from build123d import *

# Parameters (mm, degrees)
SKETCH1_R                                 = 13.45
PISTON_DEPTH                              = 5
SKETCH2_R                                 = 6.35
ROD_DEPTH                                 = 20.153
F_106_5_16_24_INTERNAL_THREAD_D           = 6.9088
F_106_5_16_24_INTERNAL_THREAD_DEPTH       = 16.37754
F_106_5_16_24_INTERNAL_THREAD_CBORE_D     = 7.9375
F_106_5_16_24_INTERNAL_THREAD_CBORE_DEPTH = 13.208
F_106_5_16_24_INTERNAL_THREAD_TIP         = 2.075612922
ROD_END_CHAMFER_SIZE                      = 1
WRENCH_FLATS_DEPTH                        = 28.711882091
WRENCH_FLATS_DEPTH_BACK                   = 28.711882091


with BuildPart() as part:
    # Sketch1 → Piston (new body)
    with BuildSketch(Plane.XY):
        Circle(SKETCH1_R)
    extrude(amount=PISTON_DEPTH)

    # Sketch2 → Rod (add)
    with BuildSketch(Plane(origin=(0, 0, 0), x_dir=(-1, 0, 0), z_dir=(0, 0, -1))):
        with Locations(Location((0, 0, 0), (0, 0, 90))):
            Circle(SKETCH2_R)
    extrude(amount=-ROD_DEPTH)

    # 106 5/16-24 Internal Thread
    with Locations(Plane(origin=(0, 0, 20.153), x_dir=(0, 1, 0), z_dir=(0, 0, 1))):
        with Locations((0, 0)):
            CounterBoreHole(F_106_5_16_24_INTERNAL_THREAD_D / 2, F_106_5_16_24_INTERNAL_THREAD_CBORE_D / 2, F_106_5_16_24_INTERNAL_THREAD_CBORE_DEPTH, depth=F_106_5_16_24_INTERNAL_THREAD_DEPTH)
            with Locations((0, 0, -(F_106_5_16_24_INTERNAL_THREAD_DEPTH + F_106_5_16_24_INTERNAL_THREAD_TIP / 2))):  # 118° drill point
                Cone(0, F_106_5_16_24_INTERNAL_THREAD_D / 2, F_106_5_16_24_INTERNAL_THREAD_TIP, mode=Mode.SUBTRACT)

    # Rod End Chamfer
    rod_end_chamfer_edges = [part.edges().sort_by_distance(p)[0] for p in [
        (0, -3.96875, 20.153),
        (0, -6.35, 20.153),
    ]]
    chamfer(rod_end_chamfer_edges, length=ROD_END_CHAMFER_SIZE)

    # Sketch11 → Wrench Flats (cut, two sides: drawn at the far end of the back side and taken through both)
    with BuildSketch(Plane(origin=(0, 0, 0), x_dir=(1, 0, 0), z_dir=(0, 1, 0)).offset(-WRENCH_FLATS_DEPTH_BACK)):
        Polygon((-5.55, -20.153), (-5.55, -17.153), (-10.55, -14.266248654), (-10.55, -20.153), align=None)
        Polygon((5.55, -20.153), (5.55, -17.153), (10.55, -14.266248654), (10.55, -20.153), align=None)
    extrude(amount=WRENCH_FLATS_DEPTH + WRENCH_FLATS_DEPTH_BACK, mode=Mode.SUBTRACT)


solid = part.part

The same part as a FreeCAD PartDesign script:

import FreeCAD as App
import Part
import Sketcher
from FreeCAD import Vector
Q = App.Units.Quantity


def edges_at(feature, points):
    """Names of the edges that pass closest to the given points."""
    edges = feature.Shape.Edges
    near = lambda p: min(range(len(edges)), key=lambda i: edges[i].distToShape(Part.Vertex(*p))[0])
    return sorted({f"Edge{near(p) + 1}" for p in points})

doc = App.newDocument("Part")
params = doc.addObject("Spreadsheet::Sheet", "Params")
for row, (alias, value) in enumerate([
    ("sketch1_diameter", "26.9 mm"),
    ("pad1_length", "5 mm"),
    ("sketch2_diameter", "12.7 mm"),
    ("pad2_length", "20.153 mm"),
    ("hole_diameter", "6.9088 mm"),
    ("hole_depth", "16.37754 mm"),
    ("hole_cbore_diameter", "7.9375 mm"),
    ("hole_cbore_depth", "13.208 mm"),
    ("chamfer_size", "1 mm"),
    ("sketch4_width", "5 mm"),
    ("sketch4_height", "3 mm"),
], start=1):
    params.set(f"A{row}", alias)
    params.set(f"B{row}", "=" + value)
    params.setAlias(f"B{row}", alias)

body = doc.addObject("PartDesign::Body", "Body")

# Sketch on XY plane
sketch1 = body.newObject("Sketcher::SketchObject", "Sketch")
sketch1.AttachmentSupport = (doc.getObject("XY_Plane"), [""])
sketch1.MapMode = "FlatFace"
sketch1.addGeometry(Part.Circle(Vector(0, 0, 0), Vector(0, 0, 1), 13.45), False)
sketch1.addConstraint(Sketcher.Constraint("Coincident", 0, 3, -1, 1))
sketch1.addConstraint(Sketcher.Constraint("Diameter", 0, 26.9))
sketch1.setExpression("Constraints[1]", "Params.sketch1_diameter")
pad1 = body.newObject("PartDesign::Pad", "Pad")
pad1.Profile = sketch1
pad1.setExpression("Length", "Params.pad1_length")

# Sketch on XY plane
sketch2 = body.newObject("Sketcher::SketchObject", "Sketch001")
sketch2.AttachmentSupport = (doc.getObject("XY_Plane"), [""])
sketch2.MapMode = "FlatFace"
sketch2.addGeometry(Part.Circle(Vector(0, 0, 0), Vector(0, 0, 1), 6.35), False)
sketch2.addConstraint(Sketcher.Constraint("Coincident", 0, 3, -1, 1))
sketch2.addConstraint(Sketcher.Constraint("Diameter", 0, 12.7))
sketch2.setExpression("Constraints[1]", "Params.sketch2_diameter")
pad2 = body.newObject("PartDesign::Pad", "Pad001")
pad2.Profile = sketch2
pad2.setExpression("Length", "Params.pad2_length")

# Sketch on XY plane
sketch3 = body.newObject("Sketcher::SketchObject", "Sketch002")
sketch3.AttachmentSupport = (doc.getObject("XY_Plane"), [""])
sketch3.MapMode = "FlatFace"
sketch3.AttachmentOffset = App.Placement(Vector(0, 0, 20.153), App.Rotation())
sketch3.addGeometry(Part.Circle(Vector(0, 0, 0), Vector(0, 0, 1), 3.4544), False)
sketch3.addConstraint(Sketcher.Constraint("Coincident", 0, 3, -1, 1))
sketch3.addConstraint(Sketcher.Constraint("Diameter", 0, 6.9088))
doc.recompute()
hole = body.newObject("PartDesign::Hole", "Hole")
hole.Profile = sketch3
hole.ThreadType = "None"
hole.setExpression("Diameter", "Params.hole_diameter")
hole.DepthType = "Dimension"
hole.setExpression("Depth", "Params.hole_depth")
hole.DrillPoint = "Angled"
hole.DrillPointAngle = 118
hole.HoleCutType = "Counterbore"
hole.setExpression("HoleCutDiameter", "Params.hole_cbore_diameter")
hole.setExpression("HoleCutDepth", "Params.hole_cbore_depth")
doc.recompute()

chamfer = body.newObject("PartDesign::Chamfer", "Chamfer")
chamfer.Base = (hole, edges_at(hole, [(0, -3.969, 20.153), (0, -6.35, 20.153)]))
chamfer.setExpression("Size", "Params.chamfer_size")

# Sketch on XZ plane
sketch4 = body.newObject("Sketcher::SketchObject", "Sketch003")
sketch4.AttachmentSupport = (doc.getObject("XZ_Plane"), [""])
sketch4.MapMode = "FlatFace"
sketch4.addGeometry(Part.LineSegment(Vector(-5.55, 20.153, 0), Vector(-5.55, 17.153, 0)), False)
sketch4.addGeometry(Part.LineSegment(Vector(-5.55, 17.153, 0), Vector(-10.55, 14.266249, 0)), False)
sketch4.addGeometry(Part.LineSegment(Vector(-10.55, 14.266249, 0), Vector(-10.55, 20.153, 0)), False)
sketch4.addGeometry(Part.LineSegment(Vector(-10.55, 20.153, 0), Vector(-5.55, 20.153, 0)), False)
sketch4.addGeometry(Part.LineSegment(Vector(5.55, 17.153, 0), Vector(5.55, 20.153, 0)), False)
sketch4.addGeometry(Part.LineSegment(Vector(5.55, 20.153, 0), Vector(10.55, 20.153, 0)), False)
sketch4.addGeometry(Part.LineSegment(Vector(10.55, 20.153, 0), Vector(10.55, 14.266249, 0)), False)
sketch4.addGeometry(Part.LineSegment(Vector(10.55, 14.266249, 0), Vector(5.55, 17.153, 0)), False)
sketch4.addConstraint(Sketcher.Constraint("Coincident", 0, 2, 1, 1))
sketch4.addConstraint(Sketcher.Constraint("Coincident", 1, 2, 2, 1))
sketch4.addConstraint(Sketcher.Constraint("Coincident", 2, 2, 3, 1))
sketch4.addConstraint(Sketcher.Constraint("Coincident", 3, 2, 0, 1))
sketch4.addConstraint(Sketcher.Constraint("Coincident", 4, 2, 5, 1))
sketch4.addConstraint(Sketcher.Constraint("Coincident", 5, 2, 6, 1))
sketch4.addConstraint(Sketcher.Constraint("Coincident", 6, 2, 7, 1))
sketch4.addConstraint(Sketcher.Constraint("Coincident", 7, 2, 4, 1))
sketch4.addConstraint(Sketcher.Constraint("Vertical", 0))
sketch4.addConstraint(Sketcher.Constraint("Vertical", 2))
sketch4.addConstraint(Sketcher.Constraint("Horizontal", 3))
sketch4.addConstraint(Sketcher.Constraint("Vertical", 4))
sketch4.addConstraint(Sketcher.Constraint("Horizontal", 5))
sketch4.addConstraint(Sketcher.Constraint("Vertical", 6))
sketch4.addConstraint(Sketcher.Constraint("Symmetric", 3, 2, 4, 2, -2))
sketch4.addConstraint(Sketcher.Constraint("Symmetric", 1, 2, 6, 2, -2))
sketch4.addConstraint(Sketcher.Constraint("Horizontal", 0, 2, 7, 2))
sketch4.addConstraint(Sketcher.Constraint("DistanceX", 3, 1, 3, 2, 5.0))
sketch4.addConstraint(Sketcher.Constraint("DistanceY", 0, 2, 0, 1, 3.0))
sketch4.addConstraint(Sketcher.Constraint("Angle", 1, Q("-150 deg")))
sketch4.addConstraint(Sketcher.Constraint("DistanceX", 3, 2, 4, 2, 11.1))
sketch4.addConstraint(Sketcher.Constraint("DistanceY", -1, 1, 0, 2, 17.153))
sketch4.setExpression("Constraints[17]", "Params.sketch4_width")
sketch4.setExpression("Constraints[18]", "Params.sketch4_height")
pocket1 = body.newObject("PartDesign::Pocket", "Pocket")
pocket1.Profile = sketch4
pocket1.Type = "ThroughAll"
pocket1.Midplane = True

doc.recompute()
